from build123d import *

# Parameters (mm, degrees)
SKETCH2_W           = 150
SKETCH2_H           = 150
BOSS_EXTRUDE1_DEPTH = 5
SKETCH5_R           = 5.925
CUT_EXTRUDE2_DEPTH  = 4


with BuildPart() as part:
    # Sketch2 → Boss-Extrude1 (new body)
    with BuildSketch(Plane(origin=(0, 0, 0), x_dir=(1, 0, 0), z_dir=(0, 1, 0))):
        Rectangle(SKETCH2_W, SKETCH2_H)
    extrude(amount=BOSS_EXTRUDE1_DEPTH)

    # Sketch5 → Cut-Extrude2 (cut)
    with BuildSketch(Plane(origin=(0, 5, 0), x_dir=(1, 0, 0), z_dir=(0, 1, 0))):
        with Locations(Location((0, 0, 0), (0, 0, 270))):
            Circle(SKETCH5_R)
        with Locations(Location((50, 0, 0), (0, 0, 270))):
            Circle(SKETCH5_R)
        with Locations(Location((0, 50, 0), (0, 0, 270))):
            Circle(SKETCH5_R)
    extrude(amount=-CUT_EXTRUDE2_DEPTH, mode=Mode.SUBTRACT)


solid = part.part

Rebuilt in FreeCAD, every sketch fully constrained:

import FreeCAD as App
import Part
import Sketcher
from FreeCAD import Vector

doc = App.newDocument("Part")
params = doc.addObject("Spreadsheet::Sheet", "Params")
for row, (alias, value) in enumerate([
    ("sketch1_width", "150 mm"),
    ("pad1_length", "5 mm"),
    ("sketch2_diameter", "11.85 mm"),
    ("pocket1_length", "4 mm"),
], start=1):
    params.set(f"A{row}", alias)
    params.set(f"B{row}", "=" + value)
    params.setAlias(f"B{row}", alias)

body = doc.addObject("PartDesign::Body", "Body")

# Sketch on XZ plane
sketch1 = doc.addObject("Sketcher::SketchObject", "Sketch")
body.addObject(sketch1)
sketch1.AttachmentSupport = (doc.XZ_Plane, [""])
sketch1.MapMode = "FlatFace"
sketch1.addGeometry(Part.LineSegment(Vector(-75, -75, 0), Vector(-75, 75, 0)), False)
sketch1.addGeometry(Part.LineSegment(Vector(-75, 75, 0), Vector(75, 75, 0)), False)
sketch1.addGeometry(Part.LineSegment(Vector(75, 75, 0), Vector(75, -75, 0)), False)
sketch1.addGeometry(Part.LineSegment(Vector(75, -75, 0), Vector(-75, -75, 0)), False)
sketch1.addConstraint(Sketcher.Constraint("Coincident", 0, 2, 1, 1))
sketch1.addConstraint(Sketcher.Constraint("Coincident", 1, 2, 2, 1))
sketch1.addConstraint(Sketcher.Constraint("Coincident", 2, 2, 3, 1))
sketch1.addConstraint(Sketcher.Constraint("Coincident", 3, 2, 0, 1))
sketch1.addConstraint(Sketcher.Constraint("Vertical", 0))
sketch1.addConstraint(Sketcher.Constraint("Horizontal", 1))
sketch1.addConstraint(Sketcher.Constraint("Vertical", 2))
sketch1.addConstraint(Sketcher.Constraint("Horizontal", 3))
sketch1.addConstraint(Sketcher.Constraint("Symmetric", 0, 2, 2, 2, -1, 1))
sketch1.addConstraint(Sketcher.Constraint("Equal", 3, 0))
sketch1.addConstraint(Sketcher.Constraint("DistanceX", 1, 1, 1, 2, 150.0))
sketch1.setExpression("Constraints[10]", "Params.sketch1_width")
pad1 = doc.addObject("PartDesign::Pad", "Pad")
body.addObject(pad1)
pad1.Profile = sketch1
pad1.setExpression("Length", "Params.pad1_length")
pad1.Reversed = True

# Sketch on XZ plane
sketch2 = doc.addObject("Sketcher::SketchObject", "Sketch001")
body.addObject(sketch2)
sketch2.AttachmentSupport = (doc.XZ_Plane, [""])
sketch2.MapMode = "FlatFace"
sketch2.AttachmentOffset = App.Placement(Vector(0, 0, -5), App.Rotation())
sketch2.addGeometry(Part.Circle(Vector(0, 0, 0), Vector(0, 0, 1), 5.925), False)
sketch2.addGeometry(Part.Circle(Vector(50, 0, 0), Vector(0, 0, 1), 5.925), False)
sketch2.addGeometry(Part.Circle(Vector(0, -50, 0), Vector(0, 0, 1), 5.925), False)
sketch2.addConstraint(Sketcher.Constraint("Coincident", 0, 3, -1, 1))
sketch2.addConstraint(Sketcher.Constraint("Equal", 0, 1))
sketch2.addConstraint(Sketcher.Constraint("Equal", 1, 2))
sketch2.addConstraint(Sketcher.Constraint("PointOnObject", 1, 3, -1))
sketch2.addConstraint(Sketcher.Constraint("PointOnObject", 2, 3, -2))
sketch2.addConstraint(Sketcher.Constraint("Diameter", 0, 11.85))
sketch2.addConstraint(Sketcher.Constraint("DistanceX", -1, 1, 1, 3, 50.0))
sketch2.addConstraint(Sketcher.Constraint("DistanceY", 2, 3, -1, 1, 50.0))
sketch2.setExpression("Constraints[5]", "Params.sketch2_diameter")
pocket1 = doc.addObject("PartDesign::Pocket", "Pocket")
body.addObject(pocket1)
pocket1.Profile = sketch2
pocket1.setExpression("Length", "Params.pocket1_length")
pocket1.Reversed = True

doc.recompute()
